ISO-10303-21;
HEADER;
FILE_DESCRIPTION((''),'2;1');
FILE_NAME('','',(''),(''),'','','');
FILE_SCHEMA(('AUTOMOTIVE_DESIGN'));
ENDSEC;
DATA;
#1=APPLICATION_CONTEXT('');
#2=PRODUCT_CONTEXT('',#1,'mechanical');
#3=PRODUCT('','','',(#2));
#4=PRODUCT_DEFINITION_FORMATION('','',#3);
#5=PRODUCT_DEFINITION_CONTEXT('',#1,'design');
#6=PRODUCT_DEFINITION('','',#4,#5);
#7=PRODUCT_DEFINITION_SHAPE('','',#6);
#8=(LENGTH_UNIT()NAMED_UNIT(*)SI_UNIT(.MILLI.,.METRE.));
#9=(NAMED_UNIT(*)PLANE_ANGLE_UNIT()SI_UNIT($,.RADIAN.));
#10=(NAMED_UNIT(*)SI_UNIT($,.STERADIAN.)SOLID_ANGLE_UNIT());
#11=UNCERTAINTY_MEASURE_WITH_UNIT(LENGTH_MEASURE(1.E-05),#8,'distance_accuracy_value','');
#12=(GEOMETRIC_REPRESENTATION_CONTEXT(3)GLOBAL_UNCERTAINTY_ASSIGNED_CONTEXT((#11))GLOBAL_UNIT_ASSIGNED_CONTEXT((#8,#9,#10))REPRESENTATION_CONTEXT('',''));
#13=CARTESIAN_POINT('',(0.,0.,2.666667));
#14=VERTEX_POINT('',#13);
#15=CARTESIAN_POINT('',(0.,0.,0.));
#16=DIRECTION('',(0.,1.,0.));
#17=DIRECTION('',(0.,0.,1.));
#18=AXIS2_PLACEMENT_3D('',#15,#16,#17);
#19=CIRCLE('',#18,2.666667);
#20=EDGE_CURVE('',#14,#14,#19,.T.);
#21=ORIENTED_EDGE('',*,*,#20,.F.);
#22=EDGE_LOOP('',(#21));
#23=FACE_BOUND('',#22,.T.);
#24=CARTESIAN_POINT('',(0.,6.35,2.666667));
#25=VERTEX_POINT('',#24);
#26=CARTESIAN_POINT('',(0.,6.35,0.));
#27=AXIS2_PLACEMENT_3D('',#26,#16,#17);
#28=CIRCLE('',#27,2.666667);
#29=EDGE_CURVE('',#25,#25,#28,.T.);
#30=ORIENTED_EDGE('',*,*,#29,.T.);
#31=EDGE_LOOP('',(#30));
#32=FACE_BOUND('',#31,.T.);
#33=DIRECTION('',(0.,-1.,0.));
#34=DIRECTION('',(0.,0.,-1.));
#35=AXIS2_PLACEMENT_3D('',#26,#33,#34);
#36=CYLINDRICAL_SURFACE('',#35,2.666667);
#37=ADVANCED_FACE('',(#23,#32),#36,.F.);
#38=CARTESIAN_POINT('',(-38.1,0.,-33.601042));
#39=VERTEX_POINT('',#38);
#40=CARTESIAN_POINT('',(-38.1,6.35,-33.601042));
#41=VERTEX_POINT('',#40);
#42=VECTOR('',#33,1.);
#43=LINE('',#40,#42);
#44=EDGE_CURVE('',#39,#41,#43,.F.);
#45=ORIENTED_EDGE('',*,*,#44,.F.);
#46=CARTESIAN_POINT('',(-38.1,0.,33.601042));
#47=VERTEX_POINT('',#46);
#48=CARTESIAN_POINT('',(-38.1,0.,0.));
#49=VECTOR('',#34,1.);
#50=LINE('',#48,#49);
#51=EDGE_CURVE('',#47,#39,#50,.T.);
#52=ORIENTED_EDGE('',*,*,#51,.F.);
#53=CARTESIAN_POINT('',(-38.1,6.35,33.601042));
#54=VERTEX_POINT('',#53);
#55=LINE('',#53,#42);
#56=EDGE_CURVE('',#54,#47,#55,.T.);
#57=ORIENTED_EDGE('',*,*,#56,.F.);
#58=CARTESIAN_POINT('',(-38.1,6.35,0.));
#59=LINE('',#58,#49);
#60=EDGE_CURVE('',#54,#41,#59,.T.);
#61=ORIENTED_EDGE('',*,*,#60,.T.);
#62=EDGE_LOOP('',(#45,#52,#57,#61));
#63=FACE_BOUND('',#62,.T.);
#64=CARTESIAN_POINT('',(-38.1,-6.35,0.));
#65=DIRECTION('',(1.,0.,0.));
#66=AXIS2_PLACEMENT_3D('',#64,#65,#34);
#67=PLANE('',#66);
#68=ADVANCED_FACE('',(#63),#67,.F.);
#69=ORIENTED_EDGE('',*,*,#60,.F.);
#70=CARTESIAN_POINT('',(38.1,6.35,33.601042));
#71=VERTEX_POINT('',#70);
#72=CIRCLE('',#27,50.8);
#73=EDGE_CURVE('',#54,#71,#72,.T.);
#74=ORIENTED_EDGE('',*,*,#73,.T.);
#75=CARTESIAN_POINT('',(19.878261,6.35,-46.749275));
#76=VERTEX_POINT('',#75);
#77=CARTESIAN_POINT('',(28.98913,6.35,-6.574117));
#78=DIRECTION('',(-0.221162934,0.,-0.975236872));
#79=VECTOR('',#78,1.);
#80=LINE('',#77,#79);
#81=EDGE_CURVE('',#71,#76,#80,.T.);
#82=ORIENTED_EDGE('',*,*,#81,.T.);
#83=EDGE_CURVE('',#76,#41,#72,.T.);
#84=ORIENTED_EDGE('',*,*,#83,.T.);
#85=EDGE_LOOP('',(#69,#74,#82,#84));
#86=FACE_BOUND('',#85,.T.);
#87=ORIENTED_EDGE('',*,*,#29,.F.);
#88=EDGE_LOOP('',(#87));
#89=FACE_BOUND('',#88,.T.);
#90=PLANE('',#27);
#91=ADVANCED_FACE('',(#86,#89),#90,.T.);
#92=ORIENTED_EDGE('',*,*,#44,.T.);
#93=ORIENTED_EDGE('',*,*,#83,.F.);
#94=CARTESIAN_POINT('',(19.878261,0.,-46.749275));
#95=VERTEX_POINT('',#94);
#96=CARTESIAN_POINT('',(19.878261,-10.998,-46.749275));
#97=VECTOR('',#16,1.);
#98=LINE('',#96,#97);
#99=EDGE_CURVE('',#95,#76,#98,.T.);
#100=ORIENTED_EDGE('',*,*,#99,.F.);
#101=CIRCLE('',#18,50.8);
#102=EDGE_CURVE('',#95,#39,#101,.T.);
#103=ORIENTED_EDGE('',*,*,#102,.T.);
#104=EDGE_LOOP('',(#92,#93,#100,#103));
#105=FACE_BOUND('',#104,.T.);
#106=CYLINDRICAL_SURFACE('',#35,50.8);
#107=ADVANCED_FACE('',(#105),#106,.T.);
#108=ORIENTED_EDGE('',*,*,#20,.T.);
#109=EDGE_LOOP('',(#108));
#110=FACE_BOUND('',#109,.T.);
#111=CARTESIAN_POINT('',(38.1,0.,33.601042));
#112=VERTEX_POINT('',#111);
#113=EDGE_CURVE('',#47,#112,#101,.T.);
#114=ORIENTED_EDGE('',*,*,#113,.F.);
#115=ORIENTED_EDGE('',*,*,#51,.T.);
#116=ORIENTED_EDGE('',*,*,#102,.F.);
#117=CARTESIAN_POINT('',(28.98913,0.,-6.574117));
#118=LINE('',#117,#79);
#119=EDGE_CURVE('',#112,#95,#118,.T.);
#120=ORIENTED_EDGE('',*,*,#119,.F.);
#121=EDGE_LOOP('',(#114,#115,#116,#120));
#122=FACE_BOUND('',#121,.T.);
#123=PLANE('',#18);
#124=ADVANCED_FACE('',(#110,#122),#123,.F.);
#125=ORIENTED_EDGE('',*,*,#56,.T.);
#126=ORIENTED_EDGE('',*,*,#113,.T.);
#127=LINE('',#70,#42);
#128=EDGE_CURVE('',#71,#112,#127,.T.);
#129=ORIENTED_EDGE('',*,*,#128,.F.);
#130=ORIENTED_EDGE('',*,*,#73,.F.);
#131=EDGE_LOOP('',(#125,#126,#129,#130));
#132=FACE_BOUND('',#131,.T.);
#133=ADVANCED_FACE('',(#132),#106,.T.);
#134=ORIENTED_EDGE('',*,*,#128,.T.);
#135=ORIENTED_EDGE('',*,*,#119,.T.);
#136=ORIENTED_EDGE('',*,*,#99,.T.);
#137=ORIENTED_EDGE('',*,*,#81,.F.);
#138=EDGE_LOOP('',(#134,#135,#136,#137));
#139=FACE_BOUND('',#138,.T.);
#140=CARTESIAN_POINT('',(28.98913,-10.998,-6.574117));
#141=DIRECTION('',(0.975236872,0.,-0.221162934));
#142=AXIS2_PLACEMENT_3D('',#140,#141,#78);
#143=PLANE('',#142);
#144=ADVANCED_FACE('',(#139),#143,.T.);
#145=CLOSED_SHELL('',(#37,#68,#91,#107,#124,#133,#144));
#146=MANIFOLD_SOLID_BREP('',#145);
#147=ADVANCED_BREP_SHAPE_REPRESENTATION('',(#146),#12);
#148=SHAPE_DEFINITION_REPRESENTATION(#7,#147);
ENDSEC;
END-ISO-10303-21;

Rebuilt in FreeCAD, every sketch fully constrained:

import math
import FreeCAD as App
import Part
import Sketcher
from FreeCAD import Vector
Q = App.Units.Quantity

doc = App.newDocument("Part")
body = doc.addObject("PartDesign::Body", "Body")

sketch1 = doc.addObject("Sketcher::SketchObject", "Sketch")
body.addObject(sketch1)
sketch1.AttachmentSupport = (doc.XZ_Plane, [""])
sketch1.MapMode = "FlatFace"
sketch1.addGeometry([
    Part.Circle(Vector(0, 0, 0), Vector(0, 0, 1), 50.8),
    Part.Circle(Vector(0, 0, 0), Vector(0, 0, 1), 2.666667),
], False)
sketch1.addConstraint([
    Sketcher.Constraint("Coincident", 0, 3, -1, 1),
    Sketcher.Constraint("Coincident", 1, 3, -1, 1),
    Sketcher.Constraint("Diameter", 0, Q("4 in")),
    Sketcher.Constraint("Diameter", 1, 5.333333),
])
pad1 = doc.addObject("PartDesign::Pad", "Pad")
body.addObject(pad1)
pad1.Profile = sketch1
pad1.Length = Q("0.25 in")
pad1.Reversed = True

sketch2 = doc.addObject("Sketcher::SketchObject", "Sketch001")
body.addObject(sketch2)
sketch2.AttachmentSupport = (doc.XZ_Plane, [""])
sketch2.MapMode = "FlatFace"
sketch2.AttachmentOffset = App.Placement(Vector(0, 0, 0.25 * 25.4), App.Rotation())
sketch2.addGeometry([
    Part.ArcOfCircle(Part.Circle(Vector(0, 0, 0), Vector(0, 0, 1), 50.8), math.radians(-41.409622), math.radians(0)),
    Part.LineSegment(Vector(38.1, -33.601042, 0), Vector(38.1, 33.601042, 0)),
    Part.ArcOfCircle(Part.Circle(Vector(0, 0, 0), Vector(0, 0, 1), 50.8), math.radians(0), math.radians(41.409622)),
    Part.ArcOfCircle(Part.Circle(Vector(0, 0, 0), Vector(0, 0, 1), 50.8), math.radians(-180), math.radians(-138.590378)),
    Part.ArcOfCircle(Part.Circle(Vector(0, 0, 0), Vector(0, 0, 1), 50.8), math.radians(138.590378), math.radians(180)),
    Part.LineSegment(Vector(-38.1, 33.601042, 0), Vector(-38.1, -33.601042, 0)),
], False)
sketch2.addConstraint([
    Sketcher.Constraint("Coincident", 0, 1, 1, 1),
    Sketcher.Constraint("Coincident", 1, 2, 2, 2),
    Sketcher.Constraint("Tangent", 2, 1, 0, 2),
    Sketcher.Constraint("Tangent", 3, 1, 4, 2),
    Sketcher.Constraint("Coincident", 4, 1, 5, 1),
    Sketcher.Constraint("Coincident", 5, 2, 3, 2),
    Sketcher.Constraint("Vertical", 1),
    Sketcher.Constraint("Vertical", 5),
    Sketcher.Constraint("Coincident", 0, 3, -1, 1),
    Sketcher.Constraint("Coincident", 3, 3, -1, 1),
    Sketcher.Constraint("Equal", 0, 2),
    Sketcher.Constraint("Equal", 2, 3),
    Sketcher.Constraint("Equal", 3, 4),
    Sketcher.Constraint("PointOnObject", 2, 1, -1),
    Sketcher.Constraint("PointOnObject", 3, 1, -1),
    Sketcher.Constraint("Horizontal", 1, 2, 4, 1),
    Sketcher.Constraint("Radius", 0, Q("2 in")),
    Sketcher.Constraint("DistanceX", -1, 1, 0, 1, Q("1.5 in")),
])
pocket1 = doc.addObject("PartDesign::Pocket", "Pocket")
body.addObject(pocket1)
pocket1.Profile = sketch2
pocket1.Length = Q("0.5 in")

sketch3 = doc.addObject("Sketcher::SketchObject", "Sketch002")
body.addObject(sketch3)
sketch3.AttachmentSupport = (doc.XZ_Plane, [""])
sketch3.MapMode = "FlatFace"
sketch3.AttachmentOffset = App.Placement(Vector(0, 0, 10.998), App.Rotation())
sketch3.addGeometry([
    Part.ArcOfCircle(Part.Circle(Vector(0, 0, 0), Vector(0, 0, 1), 50.8), math.radians(-66.964316), math.radians(-41.409622)),
    Part.LineSegment(Vector(19.878261, -46.749275, 0), Vector(22.86, -33.601042, 0)),
    Part.LineSegment(Vector(22.86, -33.601042, 0), Vector(38.1, 33.601042, 0)),
    Part.LineSegment(Vector(38.1, 33.601042, 0), Vector(38.1, -33.601042, 0)),
], False)
sketch3.addConstraint([
    Sketcher.Constraint("Coincident", 0, 1, 1, 1),
    Sketcher.Constraint("Coincident", 1, 2, 2, 1),
    Sketcher.Constraint("Coincident", 2, 2, 3, 1),
    Sketcher.Constraint("Coincident", 3, 2, 0, 2),
    Sketcher.Constraint("Vertical", 3),
    Sketcher.Constraint("Coincident", 0, 3, -1, 1),
    Sketcher.Constraint("Parallel", 1, 2),
    Sketcher.Constraint("Horizontal", 1, 2, 3, 2),
    Sketcher.Constraint("Radius", 0, Q("2 in")),
    Sketcher.Constraint("DistanceX", -1, 1, 1, 2, Q("0.9 in")),
    Sketcher.Constraint("DistanceX", -1, 1, 2, 2, Q("1.5 in")),
    Sketcher.Constraint("DistanceY", 3, 2, 3, 1, 67.202083),
])
pocket2 = doc.addObject("PartDesign::Pocket", "Pocket001")
body.addObject(pocket2)
pocket2.Profile = sketch3
pocket2.Length = 17.348

doc.recompute()
